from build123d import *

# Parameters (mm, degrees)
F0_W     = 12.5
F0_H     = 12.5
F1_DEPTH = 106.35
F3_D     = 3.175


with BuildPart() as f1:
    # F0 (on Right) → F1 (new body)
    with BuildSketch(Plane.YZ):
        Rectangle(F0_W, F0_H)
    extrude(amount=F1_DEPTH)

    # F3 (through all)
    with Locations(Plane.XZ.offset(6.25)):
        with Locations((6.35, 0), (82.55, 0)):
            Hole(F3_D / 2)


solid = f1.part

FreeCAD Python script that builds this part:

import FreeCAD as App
import Part
import Sketcher
from FreeCAD import Vector
Q = App.Units.Quantity

doc = App.newDocument("Part")
params = doc.addObject("Spreadsheet::Sheet", "Params")
for row, (alias, value) in enumerate([
    ("sketch1_width", "12.5 mm"),
    ("pad1_length", "106.35 mm"),
    ("hole_diameter", "3.175 mm"),
], start=1):
    params.set(f"A{row}", alias)
    params.set(f"B{row}", "=" + value)
    params.setAlias(f"B{row}", alias)

body = doc.addObject("PartDesign::Body", "Body")

sketch1 = body.newObject("Sketcher::SketchObject", "Sketch")
sketch1.AttachmentSupport = (doc.getObject("YZ_Plane"), [""])
sketch1.MapMode = "FlatFace"
sketch1.addGeometry([
    Part.LineSegment(Vector(-6, 6, 0), Vector(-6, -6, 0)),
    Part.LineSegment(Vector(-6, -6, 0), Vector(6, -6, 0)),
    Part.LineSegment(Vector(6, -6, 0), Vector(6, 6, 0)),
    Part.LineSegment(Vector(6, 6, 0), Vector(-6, 6, 0)),
], False)
sketch1.addConstraint([
    Sketcher.Constraint("Coincident", 0, 2, 1, 1),
    Sketcher.Constraint("Coincident", 1, 2, 2, 1),
    Sketcher.Constraint("Coincident", 2, 2, 3, 1),
    Sketcher.Constraint("Coincident", 3, 2, 0, 1),
    Sketcher.Constraint("Vertical", 0),
    Sketcher.Constraint("Horizontal", 1),
    Sketcher.Constraint("Vertical", 2),
    Sketcher.Constraint("Horizontal", 3),
    Sketcher.Constraint("Symmetric", 0, 2, 2, 2, -1, 1),
    Sketcher.Constraint("Equal", 3, 0),
    Sketcher.Constraint("DistanceX", 1, 1, 1, 2, Q("12.5 mm")),
])
sketch1.setExpression("Constraints[10]", "Params.sketch1_width")
pad1 = body.newObject("PartDesign::Pad", "Pad")
pad1.Profile = sketch1
pad1.setExpression("Length", "Params.pad1_length")

sketch2 = body.newObject("Sketcher::SketchObject", "Sketch001")
sketch2.AttachmentSupport = (doc.getObject("XZ_Plane"), [""])
sketch2.MapMode = "FlatFace"
sketch2.AttachmentOffset = App.Placement(Vector(0, 0, 6.25), App.Rotation())
sketch2.addGeometry([
    Part.Circle(Vector(6.3, 0, 0), Vector(0, 0, 1), 1.6),
    Part.Circle(Vector(82.5, 0, 0), Vector(0, 0, 1), 1.6),
], False)
sketch2.addConstraint([
    Sketcher.Constraint("Equal", 0, 1),
    Sketcher.Constraint("PointOnObject", 0, 3, -1),
    Sketcher.Constraint("PointOnObject", 1, 3, -1),
    Sketcher.Constraint("Diameter", 0, Q("3.175 mm")),
    Sketcher.Constraint("DistanceX", 0, 3, 1, 3, Q("76.2 mm")),
    Sketcher.Constraint("DistanceX", -1, 1, 0, 3, Q("6.35 mm")),
])
doc.recompute()
hole = body.newObject("PartDesign::Hole", "Hole")
hole.Profile = sketch2
hole.ThreadType = "None"
hole.setExpression("Diameter", "Params.hole_diameter")
hole.DepthType = "ThroughAll"

doc.recompute()
